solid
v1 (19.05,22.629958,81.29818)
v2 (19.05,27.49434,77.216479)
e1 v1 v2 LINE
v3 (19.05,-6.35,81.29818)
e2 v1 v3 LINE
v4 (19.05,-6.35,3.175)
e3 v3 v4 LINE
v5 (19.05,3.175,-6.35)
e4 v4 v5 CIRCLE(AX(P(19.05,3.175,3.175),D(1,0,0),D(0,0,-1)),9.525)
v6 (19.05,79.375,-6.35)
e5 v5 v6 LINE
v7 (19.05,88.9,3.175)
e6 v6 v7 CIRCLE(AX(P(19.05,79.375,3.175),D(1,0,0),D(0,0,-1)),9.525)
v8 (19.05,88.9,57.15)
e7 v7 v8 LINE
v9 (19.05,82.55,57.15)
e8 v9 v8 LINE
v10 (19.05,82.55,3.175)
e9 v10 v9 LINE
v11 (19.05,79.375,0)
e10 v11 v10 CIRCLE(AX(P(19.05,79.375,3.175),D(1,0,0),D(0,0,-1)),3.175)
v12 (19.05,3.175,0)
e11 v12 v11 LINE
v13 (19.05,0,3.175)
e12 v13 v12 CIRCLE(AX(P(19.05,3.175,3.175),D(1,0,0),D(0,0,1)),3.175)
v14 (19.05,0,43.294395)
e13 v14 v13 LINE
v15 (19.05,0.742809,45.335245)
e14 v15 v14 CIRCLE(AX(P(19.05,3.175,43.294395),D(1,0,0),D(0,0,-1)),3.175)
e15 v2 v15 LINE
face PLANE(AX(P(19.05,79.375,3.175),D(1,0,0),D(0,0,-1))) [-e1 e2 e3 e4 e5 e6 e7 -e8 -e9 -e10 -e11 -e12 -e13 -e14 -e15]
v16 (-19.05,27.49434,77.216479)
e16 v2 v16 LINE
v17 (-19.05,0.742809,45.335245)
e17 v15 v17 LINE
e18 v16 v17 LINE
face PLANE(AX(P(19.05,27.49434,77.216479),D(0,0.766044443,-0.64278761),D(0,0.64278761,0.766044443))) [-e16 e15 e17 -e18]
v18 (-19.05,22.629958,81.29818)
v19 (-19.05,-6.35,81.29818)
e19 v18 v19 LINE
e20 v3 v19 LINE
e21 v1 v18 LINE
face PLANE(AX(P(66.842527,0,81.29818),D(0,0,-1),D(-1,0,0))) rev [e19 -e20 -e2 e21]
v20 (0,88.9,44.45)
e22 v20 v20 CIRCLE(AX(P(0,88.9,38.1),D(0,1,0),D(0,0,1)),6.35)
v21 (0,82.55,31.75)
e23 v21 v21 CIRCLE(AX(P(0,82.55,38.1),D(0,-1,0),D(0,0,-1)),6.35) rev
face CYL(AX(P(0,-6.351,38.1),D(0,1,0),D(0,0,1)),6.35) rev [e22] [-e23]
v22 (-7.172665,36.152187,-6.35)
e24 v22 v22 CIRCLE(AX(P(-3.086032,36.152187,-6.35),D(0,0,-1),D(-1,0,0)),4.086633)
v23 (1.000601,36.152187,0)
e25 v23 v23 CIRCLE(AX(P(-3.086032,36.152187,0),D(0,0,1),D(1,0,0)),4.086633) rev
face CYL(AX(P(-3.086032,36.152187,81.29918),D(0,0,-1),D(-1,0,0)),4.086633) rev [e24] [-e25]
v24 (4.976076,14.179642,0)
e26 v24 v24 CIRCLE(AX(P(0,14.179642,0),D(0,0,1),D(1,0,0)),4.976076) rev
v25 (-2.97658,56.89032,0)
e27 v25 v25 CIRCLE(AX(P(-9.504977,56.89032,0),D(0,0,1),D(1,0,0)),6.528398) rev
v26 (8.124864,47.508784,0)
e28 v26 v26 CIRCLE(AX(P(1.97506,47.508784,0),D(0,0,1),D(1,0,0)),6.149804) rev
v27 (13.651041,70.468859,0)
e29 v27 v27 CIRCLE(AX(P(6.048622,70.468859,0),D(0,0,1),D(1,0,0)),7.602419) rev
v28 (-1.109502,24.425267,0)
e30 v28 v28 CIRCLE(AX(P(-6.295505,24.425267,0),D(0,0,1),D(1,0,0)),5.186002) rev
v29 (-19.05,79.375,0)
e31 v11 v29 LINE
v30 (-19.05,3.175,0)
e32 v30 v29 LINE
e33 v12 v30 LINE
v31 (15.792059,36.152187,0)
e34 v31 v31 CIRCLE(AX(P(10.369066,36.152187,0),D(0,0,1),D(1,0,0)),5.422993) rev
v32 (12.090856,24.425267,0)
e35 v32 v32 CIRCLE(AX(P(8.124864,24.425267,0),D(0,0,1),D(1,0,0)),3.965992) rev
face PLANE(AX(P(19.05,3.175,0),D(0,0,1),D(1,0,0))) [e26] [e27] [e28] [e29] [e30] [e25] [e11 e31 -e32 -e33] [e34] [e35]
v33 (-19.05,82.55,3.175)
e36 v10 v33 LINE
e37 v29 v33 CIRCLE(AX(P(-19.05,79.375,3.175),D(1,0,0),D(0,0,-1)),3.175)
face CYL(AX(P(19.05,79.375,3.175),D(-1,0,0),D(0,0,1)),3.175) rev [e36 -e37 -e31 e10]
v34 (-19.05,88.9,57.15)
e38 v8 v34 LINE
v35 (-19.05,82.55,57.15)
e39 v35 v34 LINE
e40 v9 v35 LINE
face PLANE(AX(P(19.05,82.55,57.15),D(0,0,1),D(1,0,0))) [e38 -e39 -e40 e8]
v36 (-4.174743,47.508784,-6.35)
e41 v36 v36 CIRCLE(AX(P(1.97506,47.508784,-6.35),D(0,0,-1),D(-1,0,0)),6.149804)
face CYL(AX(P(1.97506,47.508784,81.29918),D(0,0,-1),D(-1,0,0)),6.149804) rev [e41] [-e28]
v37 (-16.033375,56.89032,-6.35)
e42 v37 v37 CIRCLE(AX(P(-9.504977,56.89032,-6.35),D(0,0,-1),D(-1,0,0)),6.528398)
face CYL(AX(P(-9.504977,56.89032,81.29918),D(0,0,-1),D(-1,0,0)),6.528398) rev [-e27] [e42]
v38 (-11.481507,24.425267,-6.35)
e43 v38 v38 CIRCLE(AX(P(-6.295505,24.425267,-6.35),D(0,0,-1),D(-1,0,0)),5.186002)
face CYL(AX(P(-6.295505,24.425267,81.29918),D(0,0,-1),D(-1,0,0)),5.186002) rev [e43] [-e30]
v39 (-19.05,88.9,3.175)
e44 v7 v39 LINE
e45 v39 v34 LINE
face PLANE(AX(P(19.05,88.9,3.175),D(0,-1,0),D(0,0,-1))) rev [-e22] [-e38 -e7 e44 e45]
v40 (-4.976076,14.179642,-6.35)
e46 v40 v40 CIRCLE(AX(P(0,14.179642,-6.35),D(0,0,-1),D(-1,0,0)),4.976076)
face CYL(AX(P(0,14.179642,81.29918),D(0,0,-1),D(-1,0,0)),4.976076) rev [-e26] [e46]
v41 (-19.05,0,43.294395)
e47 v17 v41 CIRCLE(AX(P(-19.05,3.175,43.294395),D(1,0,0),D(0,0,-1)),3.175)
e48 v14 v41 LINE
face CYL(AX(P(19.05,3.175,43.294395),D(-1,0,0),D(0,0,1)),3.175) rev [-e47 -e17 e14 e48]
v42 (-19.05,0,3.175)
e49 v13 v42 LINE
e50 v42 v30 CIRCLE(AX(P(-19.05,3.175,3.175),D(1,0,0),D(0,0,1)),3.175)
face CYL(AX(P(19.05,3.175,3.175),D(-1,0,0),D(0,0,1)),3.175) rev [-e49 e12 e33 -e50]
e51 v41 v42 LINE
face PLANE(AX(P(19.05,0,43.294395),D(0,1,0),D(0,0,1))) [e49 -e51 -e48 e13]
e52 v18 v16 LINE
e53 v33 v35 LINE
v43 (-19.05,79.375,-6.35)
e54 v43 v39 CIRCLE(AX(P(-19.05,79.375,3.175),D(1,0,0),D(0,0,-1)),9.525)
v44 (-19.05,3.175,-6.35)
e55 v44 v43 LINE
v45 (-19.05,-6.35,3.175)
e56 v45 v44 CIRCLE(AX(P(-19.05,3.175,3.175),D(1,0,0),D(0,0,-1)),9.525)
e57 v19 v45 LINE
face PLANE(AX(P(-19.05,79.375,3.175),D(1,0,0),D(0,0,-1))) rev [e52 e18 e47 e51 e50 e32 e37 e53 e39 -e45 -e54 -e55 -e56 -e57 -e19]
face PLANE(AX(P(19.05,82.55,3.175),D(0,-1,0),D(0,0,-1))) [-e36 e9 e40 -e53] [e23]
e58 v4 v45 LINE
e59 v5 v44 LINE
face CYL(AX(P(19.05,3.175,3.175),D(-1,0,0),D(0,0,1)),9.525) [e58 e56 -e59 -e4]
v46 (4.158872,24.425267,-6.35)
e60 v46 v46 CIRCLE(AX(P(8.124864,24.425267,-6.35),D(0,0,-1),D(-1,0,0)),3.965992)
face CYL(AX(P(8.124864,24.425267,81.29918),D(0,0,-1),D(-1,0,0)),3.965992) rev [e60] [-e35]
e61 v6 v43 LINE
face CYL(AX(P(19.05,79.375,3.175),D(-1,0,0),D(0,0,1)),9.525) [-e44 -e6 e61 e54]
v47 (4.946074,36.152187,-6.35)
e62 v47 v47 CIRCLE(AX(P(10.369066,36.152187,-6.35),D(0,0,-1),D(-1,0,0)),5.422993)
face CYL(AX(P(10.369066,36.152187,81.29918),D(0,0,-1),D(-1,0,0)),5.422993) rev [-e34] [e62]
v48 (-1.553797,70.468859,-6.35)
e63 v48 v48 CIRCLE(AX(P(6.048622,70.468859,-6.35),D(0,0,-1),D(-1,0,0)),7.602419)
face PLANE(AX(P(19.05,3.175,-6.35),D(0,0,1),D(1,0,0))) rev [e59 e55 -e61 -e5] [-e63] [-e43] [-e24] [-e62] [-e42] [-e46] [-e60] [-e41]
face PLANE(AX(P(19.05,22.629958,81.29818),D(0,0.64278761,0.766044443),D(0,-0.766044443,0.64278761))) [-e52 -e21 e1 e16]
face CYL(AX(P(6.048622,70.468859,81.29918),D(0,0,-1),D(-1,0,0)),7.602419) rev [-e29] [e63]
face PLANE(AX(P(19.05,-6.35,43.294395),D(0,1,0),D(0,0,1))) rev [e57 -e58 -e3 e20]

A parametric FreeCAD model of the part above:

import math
import FreeCAD as App
import Part
import Sketcher

V = App.Vector
Q = App.Units.Quantity

doc = App.newDocument("Part")
body = doc.addObject("PartDesign::Body", "Body")

sketch1 = body.newObject("Sketcher::SketchObject", "Sketch")
sketch1.AttachmentSupport = (doc.getObject("YZ_Plane"), [""])
sketch1.MapMode = "FlatFace"
sketch1.addGeometry([
    Part.LineSegment(V(0.742809, 45.335245, 0), V(27.49434, 77.216479, 0)),
    Part.LineSegment(V(27.49434, 77.216479, 0), V(22.629958, 81.29818, 0)),
    Part.LineSegment(V(22.629958, 81.29818, 0), V(-4.121573, 49.416946, 0)),
    Part.ArcOfCircle(Part.Circle(V(3.175, 43.294395, 0), V(0, 0, 1), 9.525), math.radians(140), math.radians(180)),
    Part.LineSegment(V(-6.35, 43.294395, 0), V(-6.35, 3.175, 0)),
    Part.ArcOfCircle(Part.Circle(V(3.175, 3.175, 0), V(0, 0, 1), 9.525), math.radians(180), math.radians(270)),
    Part.LineSegment(V(3.175, -6.35, 0), V(79.375, -6.35, 0)),
    Part.ArcOfCircle(Part.Circle(V(79.375, 3.175, 0), V(0, 0, 1), 9.525), math.radians(-90), math.radians(0)),
    Part.LineSegment(V(88.9, 3.175, 0), V(88.9, 57.15, 0)),
    Part.LineSegment(V(88.9, 57.15, 0), V(82.55, 57.15, 0)),
    Part.LineSegment(V(82.55, 57.15, 0), V(82.55, 3.175, 0)),
    Part.ArcOfCircle(Part.Circle(V(79.375, 3.175, 0), V(0, 0, 1), 3.175), math.radians(-90), math.radians(0)),
    Part.LineSegment(V(79.375, 0, 0), V(3.175, 0, 0)),
    Part.ArcOfCircle(Part.Circle(V(3.175, 3.175, 0), V(0, 0, 1), 3.175), math.radians(-180), math.radians(-90)),
    Part.LineSegment(V(0, 3.175, 0), V(0, 43.294395, 0)),
    Part.ArcOfCircle(Part.Circle(V(3.175, 43.294395, 0), V(0, 0, 1), 3.175), math.radians(140), math.radians(180)),
], False)
sketch1.addConstraint([
    Sketcher.Constraint("Coincident", 0, 2, 1, 1),
    Sketcher.Constraint("Coincident", 1, 2, 2, 1),
    Sketcher.Constraint("Tangent", 2, 2, 3, 1),
    Sketcher.Constraint("Tangent", 3, 2, 4, 1),
    Sketcher.Constraint("Tangent", 4, 2, 5, 1),
    Sketcher.Constraint("Tangent", 5, 2, 6, 1),
    Sketcher.Constraint("Tangent", 6, 2, 7, 1),
    Sketcher.Constraint("Tangent", 7, 2, 8, 1),
    Sketcher.Constraint("Coincident", 8, 2, 9, 1),
    Sketcher.Constraint("Coincident", 9, 2, 10, 1),
    Sketcher.Constraint("Tangent", 10, 2, 11, 2),
    Sketcher.Constraint("Tangent", 11, 1, 12, 1),
    Sketcher.Constraint("Tangent", 12, 2, 13, 2),
    Sketcher.Constraint("Tangent", 13, 1, 14, 1),
    Sketcher.Constraint("Tangent", 14, 2, 15, 2),
    Sketcher.Constraint("Tangent", 15, 1, 0, 1),
    Sketcher.Constraint("Vertical", 4),
    Sketcher.Constraint("Horizontal", 6),
    Sketcher.Constraint("Vertical", 8),
    Sketcher.Constraint("Horizontal", 9),
    Sketcher.Constraint("Vertical", 10),
    Sketcher.Constraint("Horizontal", 12),
    Sketcher.Constraint("Vertical", 14),
    Sketcher.Constraint("Coincident", 11, 3, 7, 3),
    Sketcher.Constraint("Coincident", 13, 3, 5, 3),
    Sketcher.Constraint("Coincident", 15, 3, 3, 3),
    Sketcher.Constraint("Equal", 3, 5),
    Sketcher.Constraint("Equal", 5, 7),
    Sketcher.Constraint("PointOnObject", 11, 1, -1),
    Sketcher.Constraint("PointOnObject", 13, 1, -2),
    Sketcher.Constraint("Perpendicular", 0, 1),
    Sketcher.Constraint("Perpendicular", 1, 2),
    Sketcher.Constraint("DistanceX", 6, 1, 6, 2, Q("3 in")),
    Sketcher.Constraint("Angle", 0, Q("50 deg")),
    Sketcher.Constraint("Radius", 3, Q("0.375 in")),
    Sketcher.Constraint("Radius", 11, Q("0.125 in")),
    Sketcher.Constraint("DistanceY", 6, 2, 8, 2, Q("2.5 in")),
    Sketcher.Constraint("DistanceY", 4, 2, 4, 1, 40.119395),
    Sketcher.Constraint("DistanceX", -1, 1, 0, 2, 27.49434),
])
pad1 = body.newObject("PartDesign::Pad", "Pad")
pad1.Profile = sketch1
pad1.Length = Q("1.5 in")
pad1.Midplane = True

sketch2 = body.newObject("Sketcher::SketchObject", "Sketch001")
sketch2.AttachmentSupport = (doc.getObject("XZ_Plane"), [""])
sketch2.MapMode = "FlatFace"
sketch2.AttachmentOffset = App.Placement(V(0, 0, -3.5 * 25.4), App.Rotation())
sketch2.addGeometry(Part.Circle(V(0, 38.1, 0), V(0, 0, 1), 6.35), False)
sketch2.addConstraint([
    Sketcher.Constraint("PointOnObject", 0, 3, -2),
    Sketcher.Constraint("Diameter", 0, Q("0.5 in")),
    Sketcher.Constraint("DistanceY", -1, 1, 0, 3, Q("1.5 in")),
])
pocket1 = body.newObject("PartDesign::Pocket", "Pocket")
pocket1.Profile = sketch2
pocket1.Type = "UpToFirst"
pocket1.Reversed = True

sketch3 = body.newObject("Sketcher::SketchObject", "Sketch002")
sketch3.AttachmentSupport = (doc.getObject("YZ_Plane"), [""])
sketch3.MapMode = "FlatFace"
sketch3.AttachmentOffset = App.Placement(V(0, 0, -0.75 * 25.4), App.Rotation())
sketch3.addGeometry([
    Part.LineSegment(V(-4.121573, 49.416946, 0), V(22.629958, 81.29818, 0)),
    Part.LineSegment(V(22.629958, 81.29818, 0), V(-6.35, 81.29818, 0)),
    Part.LineSegment(V(-6.35, 81.29818, 0), V(-6.35, 43.294395, 0)),
    Part.ArcOfCircle(Part.Circle(V(3.175, 43.294395, 0), V(0, 0, 1), 9.525), math.radians(140), math.radians(180)),
], False)
sketch3.addConstraint([
    Sketcher.Constraint("Coincident", 0, 2, 1, 1),
    Sketcher.Constraint("Coincident", 1, 2, 2, 1),
    Sketcher.Constraint("Tangent", 2, 2, 3, 2),
    Sketcher.Constraint("Tangent", 3, 1, 0, 1),
    Sketcher.Constraint("Horizontal", 1),
    Sketcher.Constraint("Vertical", 2),
    Sketcher.Constraint("Angle", 0, Q("50 deg")),
    Sketcher.Constraint("Radius", 3, Q("0.375 in")),
    Sketcher.Constraint("DistanceX", 1, 2, -1, 1, Q("0.25 in")),
    Sketcher.Constraint("DistanceX", 1, 2, 1, 1, 28.979958),
    Sketcher.Constraint("DistanceY", -1, 1, 0, 2, 81.29818),
])
pad2 = body.newObject("PartDesign::Pad", "Pad001")
pad2.Profile = sketch3
pad2.Length = Q("1.5 in")

sketch4 = body.newObject("Sketcher::SketchObject", "Sketch003")
sketch4.AttachmentSupport = (doc.getObject("XY_Plane"), [""])
sketch4.MapMode = "FlatFace"
sketch4.AttachmentOffset = App.Placement(V(0, 0, -0.25 * 25.4), App.Rotation())
sketch4.addGeometry(Part.Circle(V(6.048622, 70.468859, 0), V(0, 0, 1), 7.602419), False)
sketch4.addConstraint([
    Sketcher.Constraint("Diameter", 0, 15.204837),
    Sketcher.Constraint("DistanceY", -1, 1, 0, 3, 70.468859),
    Sketcher.Constraint("DistanceX", -1, 1, 0, 3, 6.048622),
])
pocket2 = body.newObject("PartDesign::Pocket", "Pocket001")
pocket2.Profile = sketch4
pocket2.Type = "UpToFirst"
pocket2.Reversed = True

sketch5 = body.newObject("Sketcher::SketchObject", "Sketch004")
sketch5.AttachmentSupport = (doc.getObject("XY_Plane"), [""])
sketch5.MapMode = "FlatFace"
sketch5.AttachmentOffset = App.Placement(V(0, 0, -0.25 * 25.4), App.Rotation())
sketch5.addGeometry(Part.Circle(V(1.97506, 47.508784, 0), V(0, 0, 1), 6.149804), False)
sketch5.addConstraint([
    Sketcher.Constraint("Diameter", 0, 12.299607),
    Sketcher.Constraint("DistanceX", -1, 1, 0, 3, 1.97506),
    Sketcher.Constraint("DistanceY", -1, 1, 0, 3, 47.508784),
])
pocket3 = body.newObject("PartDesign::Pocket", "Pocket002")
pocket3.Profile = sketch5
pocket3.Type = "UpToFirst"
pocket3.Reversed = True

sketch6 = body.newObject("Sketcher::SketchObject", "Sketch005")
sketch6.AttachmentSupport = (doc.getObject("XY_Plane"), [""])
sketch6.MapMode = "FlatFace"
sketch6.AttachmentOffset = App.Placement(V(0, 0, -0.25 * 25.4), App.Rotation())
sketch6.addGeometry(Part.Circle(V(-9.504977, 56.89032, 0), V(0, 0, 1), 6.528398), False)
sketch6.addConstraint([
    Sketcher.Constraint("Diameter", 0, 13.056795),
    Sketcher.Constraint("DistanceY", -1, 1, 0, 3, 56.89032),
    Sketcher.Constraint("DistanceX", 0, 3, -1, 1, 9.504977),
])
pocket4 = body.newObject("PartDesign::Pocket", "Pocket003")
pocket4.Profile = sketch6
pocket4.Type = "UpToFirst"
pocket4.Reversed = True

sketch7 = body.newObject("Sketcher::SketchObject", "Sketch006")
sketch7.AttachmentSupport = (doc.getObject("XY_Plane"), [""])
sketch7.MapMode = "FlatFace"
sketch7.AttachmentOffset = App.Placement(V(0, 0, -0.25 * 25.4), App.Rotation())
sketch7.addGeometry(Part.Circle(V(-3.086032, 36.152187, 0), V(0, 0, 1), 4.086633), False)
sketch7.addConstraint([
    Sketcher.Constraint("Diameter", 0, 8.173266),
    Sketcher.Constraint("DistanceX", 0, 3, -1, 1, 3.086032),
    Sketcher.Constraint("DistanceY", -1, 1, 0, 3, 36.152187),
])
pocket5 = body.newObject("PartDesign::Pocket", "Pocket004")
pocket5.Profile = sketch7
pocket5.Type = "UpToFirst"
pocket5.Reversed = True

sketch8 = body.newObject("Sketcher::SketchObject", "Sketch007")
sketch8.AttachmentSupport = (doc.getObject("XY_Plane"), [""])
sketch8.MapMode = "FlatFace"
sketch8.AttachmentOffset = App.Placement(V(0, 0, -0.25 * 25.4), App.Rotation())
sketch8.addGeometry(Part.Circle(V(8.124864, 24.425267, 0), V(0, 0, 1), 3.965992), False)
sketch8.addConstraint([
    Sketcher.Constraint("Diameter", 0, 7.931985),
    Sketcher.Constraint("DistanceX", -1, 1, 0, 3, 8.124864),
    Sketcher.Constraint("DistanceY", -1, 1, 0, 3, 24.425267),
])
pocket6 = body.newObject("PartDesign::Pocket", "Pocket005")
pocket6.Profile = sketch8
pocket6.Type = "UpToFirst"
pocket6.Reversed = True

sketch9 = body.newObject("Sketcher::SketchObject", "Sketch008")
sketch9.AttachmentSupport = (doc.getObject("XY_Plane"), [""])
sketch9.MapMode = "FlatFace"
sketch9.AttachmentOffset = App.Placement(V(0, 0, -0.25 * 25.4), App.Rotation())
sketch9.addGeometry(Part.Circle(V(-6.295505, 24.425267, 0), V(0, 0, 1), 5.186002), False)
sketch9.addConstraint([
    Sketcher.Constraint("Diameter", 0, 10.372005),
    Sketcher.Constraint("DistanceX", 0, 3, -1, 1, 6.295505),
    Sketcher.Constraint("DistanceY", -1, 1, 0, 3, 24.425267),
])
pocket7 = body.newObject("PartDesign::Pocket", "Pocket006")
pocket7.Profile = sketch9
pocket7.Type = "UpToFirst"
pocket7.Reversed = True

sketch10 = body.newObject("Sketcher::SketchObject", "Sketch009")
sketch10.AttachmentSupport = (doc.getObject("XY_Plane"), [""])
sketch10.MapMode = "FlatFace"
sketch10.AttachmentOffset = App.Placement(V(0, 0, -0.25 * 25.4), App.Rotation())
sketch10.addGeometry(Part.Circle(V(0, 14.179642, 0), V(0, 0, 1), 4.976076), False)
sketch10.addConstraint([
    Sketcher.Constraint("PointOnObject", 0, 3, -2),
    Sketcher.Constraint("Diameter", 0, 9.952153),
    Sketcher.Constraint("DistanceY", -1, 1, 0, 3, 14.179642),
])
pocket8 = body.newObject("PartDesign::Pocket", "Pocket007")
pocket8.Profile = sketch10
pocket8.Type = "UpToFirst"
pocket8.Reversed = True

sketch11 = body.newObject("Sketcher::SketchObject", "Sketch010")
sketch11.AttachmentSupport = (doc.getObject("XY_Plane"), [""])
sketch11.MapMode = "FlatFace"
sketch11.AttachmentOffset = App.Placement(V(0, 0, -0.25 * 25.4), App.Rotation())
sketch11.addGeometry(Part.Circle(V(10.369066, 36.152187, 0), V(0, 0, 1), 5.422993), False)
sketch11.addConstraint([
    Sketcher.Constraint("Diameter", 0, 10.845985),
    Sketcher.Constraint("DistanceX", -1, 1, 0, 3, 10.369066),
    Sketcher.Constraint("DistanceY", -1, 1, 0, 3, 36.152187),
])
pocket9 = body.newObject("PartDesign::Pocket", "Pocket008")
pocket9.Profile = sketch11
pocket9.Type = "UpToFirst"
pocket9.Reversed = True

doc.recompute()
